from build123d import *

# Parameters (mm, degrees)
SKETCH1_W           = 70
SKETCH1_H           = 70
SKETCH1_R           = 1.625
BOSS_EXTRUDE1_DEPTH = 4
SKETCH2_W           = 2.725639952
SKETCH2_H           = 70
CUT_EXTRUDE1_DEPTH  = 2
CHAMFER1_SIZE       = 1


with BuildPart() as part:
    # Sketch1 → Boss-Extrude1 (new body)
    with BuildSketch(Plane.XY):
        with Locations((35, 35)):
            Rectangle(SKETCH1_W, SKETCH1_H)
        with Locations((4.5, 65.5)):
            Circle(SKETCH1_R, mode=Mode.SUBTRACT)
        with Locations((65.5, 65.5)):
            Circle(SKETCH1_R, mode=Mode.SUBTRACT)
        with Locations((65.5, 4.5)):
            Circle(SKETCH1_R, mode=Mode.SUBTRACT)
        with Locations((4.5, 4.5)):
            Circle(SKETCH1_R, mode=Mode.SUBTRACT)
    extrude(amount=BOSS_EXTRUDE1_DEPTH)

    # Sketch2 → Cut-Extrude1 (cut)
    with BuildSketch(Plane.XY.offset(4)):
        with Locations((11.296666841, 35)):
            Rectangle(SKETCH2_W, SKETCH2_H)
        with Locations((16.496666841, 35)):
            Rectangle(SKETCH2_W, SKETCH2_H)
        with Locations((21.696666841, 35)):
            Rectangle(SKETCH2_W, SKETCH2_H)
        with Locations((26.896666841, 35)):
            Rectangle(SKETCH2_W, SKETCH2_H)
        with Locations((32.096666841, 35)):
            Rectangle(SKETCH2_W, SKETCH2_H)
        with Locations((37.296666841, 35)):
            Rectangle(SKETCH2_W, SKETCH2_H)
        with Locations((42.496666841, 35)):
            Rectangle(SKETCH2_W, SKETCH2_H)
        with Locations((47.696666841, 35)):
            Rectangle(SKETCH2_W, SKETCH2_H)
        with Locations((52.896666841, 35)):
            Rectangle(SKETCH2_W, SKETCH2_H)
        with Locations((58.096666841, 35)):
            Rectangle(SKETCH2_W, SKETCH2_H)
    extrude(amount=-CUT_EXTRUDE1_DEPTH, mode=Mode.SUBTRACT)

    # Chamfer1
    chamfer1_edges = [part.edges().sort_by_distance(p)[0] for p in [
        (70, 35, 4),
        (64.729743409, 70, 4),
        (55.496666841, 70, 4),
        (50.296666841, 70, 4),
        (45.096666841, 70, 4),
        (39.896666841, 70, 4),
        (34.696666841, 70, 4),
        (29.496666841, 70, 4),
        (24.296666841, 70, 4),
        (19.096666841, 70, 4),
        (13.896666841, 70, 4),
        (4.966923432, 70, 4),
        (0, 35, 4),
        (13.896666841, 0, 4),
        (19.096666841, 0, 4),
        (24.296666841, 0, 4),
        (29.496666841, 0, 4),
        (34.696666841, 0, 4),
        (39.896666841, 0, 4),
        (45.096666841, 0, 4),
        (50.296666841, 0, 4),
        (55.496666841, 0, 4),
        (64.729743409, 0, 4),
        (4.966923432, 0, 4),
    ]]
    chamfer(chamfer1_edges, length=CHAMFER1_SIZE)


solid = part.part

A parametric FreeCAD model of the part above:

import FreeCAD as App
import Part
import Sketcher
Q = App.Units.Quantity


def edges_at(feature, points):
    """Names of the edges that pass closest to the given points."""
    edges = feature.Shape.Edges
    near = lambda p: min(range(len(edges)), key=lambda i: edges[i].distToShape(Part.Vertex(*p))[0])
    return sorted({f"Edge{near(p) + 1}" for p in points})


def add_polygon(sketch, points):
    """Adds a closed chain of lines whose ends are joined by coincident constraints."""
    first, n = sketch.GeometryCount, len(points)
    for a, b in zip(points, points[1:] + points[:1]):
        sketch.addGeometry(Part.LineSegment(App.Vector(*a, 0), App.Vector(*b, 0)), False)
    for i in range(n):
        sketch.addConstraint(Sketcher.Constraint("Coincident", first + i, 2, first + (i + 1) % n, 1))

doc = App.newDocument("Part")
params = doc.addObject("Spreadsheet::Sheet", "Params")
for row, (alias, value) in enumerate([
    ("sketch1_diameter", "3.25 mm"),
    ("sketch1_width", "70 mm"),
    ("pad1_length", "4 mm"),
    ("sketch2_height", "70 mm"),
    ("pocket1_length", "2 mm"),
    ("chamfer_size", "1 mm"),
], start=1):
    params.set(f"A{row}", alias)
    params.set(f"B{row}", "=" + value)
    params.setAlias(f"B{row}", alias)

body = doc.addObject("PartDesign::Body", "Body")

# Sketch on XY plane
sketch1 = doc.addObject("Sketcher::SketchObject", "Sketch")
body.addObject(sketch1)
sketch1.AttachmentSupport = (doc.XY_Plane, [""])
sketch1.MapMode = "FlatFace"
add_polygon(sketch1, [(0, 70), (0, 0), (70, 0), (70, 70)])  # lines 0-3
sketch1.addGeometry(Part.Circle(App.Vector(4.5, 4.5, 0), App.Vector(0, 0, 1), 1.6), False)  # 4
sketch1.addGeometry(Part.Circle(App.Vector(65.5, 4.5, 0), App.Vector(0, 0, 1), 1.6), False)  # 5
sketch1.addGeometry(Part.Circle(App.Vector(4.5, 65.5, 0), App.Vector(0, 0, 1), 1.6), False)  # 6
sketch1.addGeometry(Part.Circle(App.Vector(65.5, 65.5, 0), App.Vector(0, 0, 1), 1.6), False)  # 7
sketch1.addConstraint([
    Sketcher.Constraint("Vertical", 0),
    Sketcher.Constraint("Horizontal", 1),
    Sketcher.Constraint("Vertical", 2),
    Sketcher.Constraint("Horizontal", 3),
    Sketcher.Constraint("Coincident", 0, 2, -1, 1),
    Sketcher.Constraint("Equal", 4, 5),
    Sketcher.Constraint("Equal", 5, 6),
    Sketcher.Constraint("Equal", 6, 7),
    Sketcher.Constraint("Horizontal", 4, 3, 5, 3),
    Sketcher.Constraint("Horizontal", 6, 3, 7, 3),
    Sketcher.Constraint("Vertical", 4, 3, 6, 3),
    Sketcher.Constraint("Vertical", 5, 3, 7, 3),
    Sketcher.Constraint("Equal", 3, 0),
    Sketcher.Constraint("Diameter", 4, Q("3.25 mm")),
    Sketcher.Constraint("DistanceX", 1, 1, 1, 2, Q("70 mm")),
    Sketcher.Constraint("DistanceX", 4, 3, 5, 3, Q("61 mm")),
    Sketcher.Constraint("DistanceY", 4, 3, 6, 3, Q("61 mm")),
    Sketcher.Constraint("DistanceX", -1, 1, 4, 3, Q("4.5 mm")),
    Sketcher.Constraint("DistanceY", -1, 1, 4, 3, Q("4.5 mm")),
])
sketch1.setExpression("Constraints[17]", "Params.sketch1_diameter")
sketch1.setExpression("Constraints[18]", "Params.sketch1_width")
pad1 = doc.addObject("PartDesign::Pad", "Pad")
body.addObject(pad1)
pad1.Profile = sketch1
pad1.setExpression("Length", "Params.pad1_length")

# Sketch on XY plane
sketch2 = doc.addObject("Sketcher::SketchObject", "Sketch001")
body.addObject(sketch2)
sketch2.AttachmentSupport = (doc.XY_Plane, [""])
sketch2.MapMode = "FlatFace"
sketch2.AttachmentOffset = App.Placement(App.Vector(0, 0, 4), App.Rotation())
add_polygon(sketch2, [(9.9, 70), (9.9, 0), (12.7, 0), (12.7, 70)])  # lines 0-3
add_polygon(sketch2, [(15.1, 70), (15.1, 0), (17.9, 0), (17.9, 70)])  # lines 4-7
add_polygon(sketch2, [(20.3, 70), (20.3, 0), (23.1, 0), (23.1, 70)])  # lines 8-11
add_polygon(sketch2, [(25.5, 70), (25.5, 0), (28.3, 0), (28.3, 70)])  # lines 12-15
add_polygon(sketch2, [(30.7, 70), (30.7, 0), (33.5, 0), (33.5, 70)])  # lines 16-19
add_polygon(sketch2, [(35.9, 70), (35.9, 0), (38.7, 0), (38.7, 70)])  # lines 20-23
add_polygon(sketch2, [(41.1, 70), (41.1, 0), (43.9, 0), (43.9, 70)])  # lines 24-27
add_polygon(sketch2, [(46.3, 70), (46.3, 0), (49.1, 0), (49.1, 70)])  # lines 28-31
add_polygon(sketch2, [(51.5, 70), (51.5, 0), (54.3, 0), (54.3, 70)])  # lines 32-35
add_polygon(sketch2, [(56.7, 70), (56.7, 0), (59.5, 0), (59.5, 70)])  # lines 36-39
sketch2.addConstraint([
    Sketcher.Constraint("Vertical", 0),
    Sketcher.Constraint("Horizontal", 1),
    Sketcher.Constraint("Vertical", 2),
    Sketcher.Constraint("Horizontal", 3),
    Sketcher.Constraint("Vertical", 4),
    Sketcher.Constraint("Horizontal", 5),
    Sketcher.Constraint("Vertical", 6),
    Sketcher.Constraint("Horizontal", 7),
    Sketcher.Constraint("Vertical", 8),
    Sketcher.Constraint("Horizontal", 9),
    Sketcher.Constraint("Vertical", 10),
    Sketcher.Constraint("Horizontal", 11),
    Sketcher.Constraint("Vertical", 12),
    Sketcher.Constraint("Horizontal", 13),
    Sketcher.Constraint("Vertical", 14),
    Sketcher.Constraint("Horizontal", 15),
    Sketcher.Constraint("Vertical", 16),
    Sketcher.Constraint("Horizontal", 17),
    Sketcher.Constraint("Vertical", 18),
    Sketcher.Constraint("Horizontal", 19),
    Sketcher.Constraint("Vertical", 20),
    Sketcher.Constraint("Horizontal", 21),
    Sketcher.Constraint("Vertical", 22),
    Sketcher.Constraint("Horizontal", 23),
    Sketcher.Constraint("Vertical", 24),
    Sketcher.Constraint("Horizontal", 25),
    Sketcher.Constraint("Vertical", 26),
    Sketcher.Constraint("Horizontal", 27),
    Sketcher.Constraint("Vertical", 28),
    Sketcher.Constraint("Horizontal", 29),
    Sketcher.Constraint("Vertical", 30),
    Sketcher.Constraint("Horizontal", 31),
    Sketcher.Constraint("Vertical", 32),
    Sketcher.Constraint("Horizontal", 33),
    Sketcher.Constraint("Vertical", 34),
    Sketcher.Constraint("Horizontal", 35),
    Sketcher.Constraint("Vertical", 36),
    Sketcher.Constraint("Horizontal", 37),
    Sketcher.Constraint("Vertical", 38),
    Sketcher.Constraint("Horizontal", 39),
    Sketcher.Constraint("PointOnObject", 0, 2, -1),
    Sketcher.Constraint("PointOnObject", 4, 2, -1),
    Sketcher.Constraint("PointOnObject", 8, 2, -1),
    Sketcher.Constraint("PointOnObject", 12, 2, -1),
    Sketcher.Constraint("PointOnObject", 16, 2, -1),
    Sketcher.Constraint("PointOnObject", 20, 2, -1),
    Sketcher.Constraint("PointOnObject", 24, 2, -1),
    Sketcher.Constraint("PointOnObject", 28, 2, -1),
    Sketcher.Constraint("PointOnObject", 32, 2, -1),
    Sketcher.Constraint("PointOnObject", 36, 2, -1),
    Sketcher.Constraint("Horizontal", 3, 2, 6, 2),
    Sketcher.Constraint("Horizontal", 7, 2, 10, 2),
    Sketcher.Constraint("Horizontal", 11, 2, 14, 2),
    Sketcher.Constraint("Horizontal", 15, 2, 18, 2),
    Sketcher.Constraint("Horizontal", 19, 2, 22, 2),
    Sketcher.Constraint("Horizontal", 23, 2, 26, 2),
    Sketcher.Constraint("Horizontal", 27, 2, 30, 2),
    Sketcher.Constraint("Horizontal", 31, 2, 34, 2),
    Sketcher.Constraint("Horizontal", 35, 2, 38, 2),
    Sketcher.Constraint("Equal", 3, 5),
    Sketcher.Constraint("Equal", 7, 9),
    Sketcher.Constraint("Equal", 11, 13),
    Sketcher.Constraint("Equal", 15, 17),
    Sketcher.Constraint("Equal", 19, 21),
    Sketcher.Constraint("Equal", 23, 25),
    Sketcher.Constraint("Equal", 27, 29),
    Sketcher.Constraint("Equal", 31, 33),
    Sketcher.Constraint("Equal", 35, 37),
    Sketcher.Constraint("DistanceY", 0, 2, 0, 1, Q("70 mm")),
    Sketcher.Constraint("DistanceX", 0, 2, 4, 2, Q("5.2 mm")),
    Sketcher.Constraint("DistanceX", 4, 2, 8, 2, Q("5.2 mm")),
    Sketcher.Constraint("DistanceX", 8, 2, 12, 2, Q("5.2 mm")),
    Sketcher.Constraint("DistanceX", 12, 2, 16, 2, Q("5.2 mm")),
    Sketcher.Constraint("DistanceX", 16, 2, 20, 2, Q("5.2 mm")),
    Sketcher.Constraint("DistanceX", 20, 2, 24, 2, Q("5.2 mm")),
    Sketcher.Constraint("DistanceX", 24, 2, 28, 2, Q("5.2 mm")),
    Sketcher.Constraint("DistanceX", 28, 2, 32, 2, Q("5.2 mm")),
    Sketcher.Constraint("DistanceX", 32, 2, 36, 2, Q("5.2 mm")),
    Sketcher.Constraint("DistanceX", 1, 1, 1, 2, Q("2.72564 mm")),
    Sketcher.Constraint("DistanceX", -1, 1, 0, 2, Q("9.933847 mm")),
])
sketch2.setExpression("Constraints[108]", "Params.sketch2_height")
pocket1 = doc.addObject("PartDesign::Pocket", "Pocket")
body.addObject(pocket1)
pocket1.Profile = sketch2
pocket1.setExpression("Length", "Params.pocket1_length")
doc.recompute()

chamfer = doc.addObject("PartDesign::Chamfer", "Chamfer")
body.addObject(chamfer)
chamfer.Base = (pocket1, edges_at(pocket1, [
    (70, 35, 4),
    (64.73, 70, 4),
    (55.497, 70, 4),
    (50.297, 70, 4),
    (45.097, 70, 4),
    (39.897, 70, 4),
    (34.697, 70, 4),
    (29.497, 70, 4),
    (24.297, 70, 4),
    (19.097, 70, 4),
    (13.897, 70, 4),
    (4.967, 70, 4),
    (0, 35, 4),
    (13.897, 0, 4),
    (19.097, 0, 4),
    (24.297, 0, 4),
    (29.497, 0, 4),
    (34.697, 0, 4),
    (39.897, 0, 4),
    (45.097, 0, 4),
    (50.297, 0, 4),
    (55.497, 0, 4),
    (64.73, 0, 4),
    (4.967, 0, 4),
]))
chamfer.setExpression("Size", "Params.chamfer_size")

doc.recompute()
